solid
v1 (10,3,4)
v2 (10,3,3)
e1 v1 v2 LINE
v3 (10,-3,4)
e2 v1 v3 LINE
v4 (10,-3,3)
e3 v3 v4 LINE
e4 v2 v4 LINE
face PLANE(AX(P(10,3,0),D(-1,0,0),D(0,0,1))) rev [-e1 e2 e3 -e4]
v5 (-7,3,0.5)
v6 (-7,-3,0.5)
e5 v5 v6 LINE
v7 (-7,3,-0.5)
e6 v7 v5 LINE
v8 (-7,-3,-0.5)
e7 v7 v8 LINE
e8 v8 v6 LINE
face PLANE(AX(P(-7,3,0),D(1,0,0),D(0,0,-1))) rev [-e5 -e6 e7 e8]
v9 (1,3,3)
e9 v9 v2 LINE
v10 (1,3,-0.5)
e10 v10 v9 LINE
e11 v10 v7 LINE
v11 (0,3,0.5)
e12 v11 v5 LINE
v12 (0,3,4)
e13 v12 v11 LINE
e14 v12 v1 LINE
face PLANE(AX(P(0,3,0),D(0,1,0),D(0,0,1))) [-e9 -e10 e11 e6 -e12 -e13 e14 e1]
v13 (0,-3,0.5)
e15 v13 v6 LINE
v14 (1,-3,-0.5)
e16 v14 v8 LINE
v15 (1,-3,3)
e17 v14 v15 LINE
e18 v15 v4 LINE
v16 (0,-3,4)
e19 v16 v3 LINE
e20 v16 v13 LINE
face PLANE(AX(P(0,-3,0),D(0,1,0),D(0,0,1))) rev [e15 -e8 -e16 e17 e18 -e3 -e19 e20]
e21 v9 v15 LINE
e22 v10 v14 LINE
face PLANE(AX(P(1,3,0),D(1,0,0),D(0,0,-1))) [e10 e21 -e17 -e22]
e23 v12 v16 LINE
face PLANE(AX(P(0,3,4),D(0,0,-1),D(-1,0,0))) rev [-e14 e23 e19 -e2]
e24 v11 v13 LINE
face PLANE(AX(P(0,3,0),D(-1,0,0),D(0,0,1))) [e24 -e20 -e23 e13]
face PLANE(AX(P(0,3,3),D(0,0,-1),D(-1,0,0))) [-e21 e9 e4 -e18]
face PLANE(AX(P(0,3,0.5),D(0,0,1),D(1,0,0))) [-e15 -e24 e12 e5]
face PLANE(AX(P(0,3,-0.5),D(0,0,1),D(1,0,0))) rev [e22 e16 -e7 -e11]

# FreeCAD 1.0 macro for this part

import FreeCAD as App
import Part
import Sketcher

V = App.Vector
Q = App.Units.Quantity


def add_polygon(sketch, points):
    """Adds a closed chain of lines whose ends are joined by coincident constraints."""
    first, n = sketch.GeometryCount, len(points)
    for a, b in zip(points, points[1:] + points[:1]):
        sketch.addGeometry(Part.LineSegment(App.Vector(*a, 0), App.Vector(*b, 0)), False)
    for i in range(n):
        sketch.addConstraint(Sketcher.Constraint("Coincident", first + i, 2, first + (i + 1) % n, 1))

doc = App.newDocument("Part")
body = doc.addObject("PartDesign::Body", "Body")

# Sketch on XZ plane
sketch1 = body.newObject("Sketcher::SketchObject", "Sketch")
sketch1.AttachmentSupport = (doc.getObject("XZ_Plane"), [""])
sketch1.MapMode = "FlatFace"
add_polygon(sketch1, [(-7, -0.5), (-7, 0.5), (0, 0.5), (0, 4), (10, 4), (10, 3), (1, 3), (1, -0.5)])  # lines 0-7
sketch1.addConstraint([
    Sketcher.Constraint("Vertical", 0),
    Sketcher.Constraint("Horizontal", 1),
    Sketcher.Constraint("Vertical", 2),
    Sketcher.Constraint("Horizontal", 3),
    Sketcher.Constraint("Vertical", 4),
    Sketcher.Constraint("Horizontal", 5),
    Sketcher.Constraint("Vertical", 6),
    Sketcher.Constraint("Horizontal", 7),
    Sketcher.Constraint("PointOnObject", 1, 2, -2),
    Sketcher.Constraint("Equal", 0, 4),
    Sketcher.Constraint("DistanceX", 1, 1, 1, 2, Q("7 mm")),
    Sketcher.Constraint("DistanceX", 3, 1, 3, 2, Q("10 mm")),
    Sketcher.Constraint("DistanceX", 5, 2, 5, 1, Q("9 mm")),
    Sketcher.Constraint("DistanceY", 0, 1, 0, 2, Q("1 mm")),
    Sketcher.Constraint("DistanceY", 2, 1, 2, 2, Q("3.5 mm")),
    Sketcher.Constraint("DistanceY", -1, 1, 2, 2, Q("4 mm")),
])
pad1 = body.newObject("PartDesign::Pad", "Pad")
pad1.Profile = sketch1
pad1.Length = 6
pad1.Midplane = True

doc.recompute()
